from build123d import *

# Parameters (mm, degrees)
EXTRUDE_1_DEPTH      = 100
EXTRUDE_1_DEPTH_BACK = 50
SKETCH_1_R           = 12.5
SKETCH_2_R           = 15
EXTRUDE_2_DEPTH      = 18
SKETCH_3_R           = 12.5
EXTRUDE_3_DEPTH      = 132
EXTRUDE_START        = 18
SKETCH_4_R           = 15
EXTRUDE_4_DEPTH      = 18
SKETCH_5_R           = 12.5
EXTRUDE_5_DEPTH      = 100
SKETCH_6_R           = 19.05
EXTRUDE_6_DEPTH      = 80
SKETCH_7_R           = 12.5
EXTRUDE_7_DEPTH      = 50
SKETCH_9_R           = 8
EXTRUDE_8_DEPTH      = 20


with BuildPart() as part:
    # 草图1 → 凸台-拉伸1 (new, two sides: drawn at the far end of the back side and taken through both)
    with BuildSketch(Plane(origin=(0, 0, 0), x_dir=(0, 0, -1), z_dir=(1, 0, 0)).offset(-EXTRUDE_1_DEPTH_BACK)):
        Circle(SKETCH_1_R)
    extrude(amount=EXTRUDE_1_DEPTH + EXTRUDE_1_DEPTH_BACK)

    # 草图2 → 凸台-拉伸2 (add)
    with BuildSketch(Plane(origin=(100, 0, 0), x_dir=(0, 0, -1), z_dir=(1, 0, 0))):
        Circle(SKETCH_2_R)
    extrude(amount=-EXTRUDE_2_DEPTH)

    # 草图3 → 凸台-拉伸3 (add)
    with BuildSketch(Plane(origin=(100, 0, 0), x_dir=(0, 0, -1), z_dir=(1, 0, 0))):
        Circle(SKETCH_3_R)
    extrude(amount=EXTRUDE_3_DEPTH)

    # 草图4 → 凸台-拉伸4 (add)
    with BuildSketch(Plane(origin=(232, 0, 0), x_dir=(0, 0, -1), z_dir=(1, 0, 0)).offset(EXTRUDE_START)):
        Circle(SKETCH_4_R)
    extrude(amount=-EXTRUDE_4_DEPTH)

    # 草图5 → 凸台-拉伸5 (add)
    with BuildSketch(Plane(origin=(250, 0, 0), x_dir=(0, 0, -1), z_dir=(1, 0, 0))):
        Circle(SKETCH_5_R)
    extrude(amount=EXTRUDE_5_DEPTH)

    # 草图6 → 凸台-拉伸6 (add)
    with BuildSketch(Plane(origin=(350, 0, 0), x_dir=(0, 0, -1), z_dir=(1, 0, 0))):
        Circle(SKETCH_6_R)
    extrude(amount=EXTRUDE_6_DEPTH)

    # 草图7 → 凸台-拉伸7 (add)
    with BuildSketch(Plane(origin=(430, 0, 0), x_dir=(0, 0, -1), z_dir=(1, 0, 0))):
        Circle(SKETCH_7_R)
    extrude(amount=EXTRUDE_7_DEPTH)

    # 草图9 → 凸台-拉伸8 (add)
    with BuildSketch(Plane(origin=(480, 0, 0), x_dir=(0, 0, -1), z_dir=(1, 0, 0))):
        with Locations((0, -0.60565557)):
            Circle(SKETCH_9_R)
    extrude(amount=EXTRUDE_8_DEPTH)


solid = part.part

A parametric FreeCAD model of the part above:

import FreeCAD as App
import Part
import Sketcher
from FreeCAD import Vector

doc = App.newDocument("Part")
body = doc.addObject("PartDesign::Body", "Body")

sketch1 = body.newObject("Sketcher::SketchObject", "Sketch")
sketch1.AttachmentSupport = (doc.getObject("YZ_Plane"), [""])
sketch1.MapMode = "FlatFace"
sketch1.addGeometry(Part.Circle(Vector(0, 0, 0), Vector(0, 0, 1), 12), False)
sketch1.addConstraint([
    Sketcher.Constraint("Coincident", 0, 3, -1, 1),
    Sketcher.Constraint("Diameter", 0, 25.0),
])
pad1 = body.newObject("PartDesign::Pad", "Pad")
pad1.Profile = sketch1
pad1.Type = "TwoLengths"
pad1.Length = 100
pad1.Length2 = 50

sketch2 = body.newObject("Sketcher::SketchObject", "Sketch001")
sketch2.AttachmentSupport = (doc.getObject("YZ_Plane"), [""])
sketch2.MapMode = "FlatFace"
sketch2.AttachmentOffset = App.Placement(Vector(0, 0, 100), App.Rotation())
sketch2.addGeometry(Part.Circle(Vector(0, 0, 0), Vector(0, 0, 1), 15), False)
sketch2.addConstraint([
    Sketcher.Constraint("Coincident", 0, 3, -1, 1),
    Sketcher.Constraint("Diameter", 0, 30.0),
])
pad2 = body.newObject("PartDesign::Pad", "Pad001")
pad2.Profile = sketch2
pad2.Length = 18
pad2.Reversed = True

sketch3 = body.newObject("Sketcher::SketchObject", "Sketch002")
sketch3.AttachmentSupport = (doc.getObject("YZ_Plane"), [""])
sketch3.MapMode = "FlatFace"
sketch3.AttachmentOffset = App.Placement(Vector(0, 0, 100), App.Rotation())
sketch3.addGeometry(Part.Circle(Vector(0, 0, 0), Vector(0, 0, 1), 12), False)
sketch3.addConstraint([
    Sketcher.Constraint("Coincident", 0, 3, -1, 1),
    Sketcher.Constraint("Diameter", 0, 25.0),
])
pad3 = body.newObject("PartDesign::Pad", "Pad002")
pad3.Profile = sketch3
pad3.Length = 132

sketch4 = body.newObject("Sketcher::SketchObject", "Sketch003")
sketch4.AttachmentSupport = (doc.getObject("YZ_Plane"), [""])
sketch4.MapMode = "FlatFace"
sketch4.AttachmentOffset = App.Placement(Vector(0, 0, 250), App.Rotation())
sketch4.addGeometry(Part.Circle(Vector(0, 0, 0), Vector(0, 0, 1), 15), False)
sketch4.addConstraint([
    Sketcher.Constraint("Coincident", 0, 3, -1, 1),
    Sketcher.Constraint("Diameter", 0, 30.0),
])
pad4 = body.newObject("PartDesign::Pad", "Pad003")
pad4.Profile = sketch4
pad4.Length = 18
pad4.Reversed = True

sketch5 = body.newObject("Sketcher::SketchObject", "Sketch004")
sketch5.AttachmentSupport = (doc.getObject("YZ_Plane"), [""])
sketch5.MapMode = "FlatFace"
sketch5.AttachmentOffset = App.Placement(Vector(0, 0, 250), App.Rotation())
sketch5.addGeometry(Part.Circle(Vector(0, 0, 0), Vector(0, 0, 1), 12), False)
sketch5.addConstraint([
    Sketcher.Constraint("Coincident", 0, 3, -1, 1),
    Sketcher.Constraint("Diameter", 0, 25.0),
])
pad5 = body.newObject("PartDesign::Pad", "Pad004")
pad5.Profile = sketch5
pad5.Length = 100

sketch6 = body.newObject("Sketcher::SketchObject", "Sketch005")
sketch6.AttachmentSupport = (doc.getObject("YZ_Plane"), [""])
sketch6.MapMode = "FlatFace"
sketch6.AttachmentOffset = App.Placement(Vector(0, 0, 350), App.Rotation())
sketch6.addGeometry(Part.Circle(Vector(0, 0, 0), Vector(0, 0, 1), 19), False)
sketch6.addConstraint([
    Sketcher.Constraint("Coincident", 0, 3, -1, 1),
    Sketcher.Constraint("Diameter", 0, 38.1),
])
pad6 = body.newObject("PartDesign::Pad", "Pad005")
pad6.Profile = sketch6
pad6.Length = 80

sketch7 = body.newObject("Sketcher::SketchObject", "Sketch006")
sketch7.AttachmentSupport = (doc.getObject("YZ_Plane"), [""])
sketch7.MapMode = "FlatFace"
sketch7.AttachmentOffset = App.Placement(Vector(0, 0, 430), App.Rotation())
sketch7.addGeometry(Part.Circle(Vector(0, 0, 0), Vector(0, 0, 1), 12), False)
sketch7.addConstraint([
    Sketcher.Constraint("Coincident", 0, 3, -1, 1),
    Sketcher.Constraint("Diameter", 0, 25.0),
])
pad7 = body.newObject("PartDesign::Pad", "Pad006")
pad7.Profile = sketch7
pad7.Length = 50

sketch8 = body.newObject("Sketcher::SketchObject", "Sketch007")
sketch8.AttachmentSupport = (doc.getObject("YZ_Plane"), [""])
sketch8.MapMode = "FlatFace"
sketch8.AttachmentOffset = App.Placement(Vector(0, 0, 480), App.Rotation())
sketch8.addGeometry(Part.Circle(Vector(-1, 0, 0), Vector(0, 0, 1), 8), False)
sketch8.addConstraint([
    Sketcher.Constraint("PointOnObject", 0, 3, -1),
    Sketcher.Constraint("Diameter", 0, 16.0),
    Sketcher.Constraint("DistanceX", 0, 3, -1, 1, 0.605656),
])
pad8 = body.newObject("PartDesign::Pad", "Pad007")
pad8.Profile = sketch8
pad8.Length = 20

doc.recompute()
